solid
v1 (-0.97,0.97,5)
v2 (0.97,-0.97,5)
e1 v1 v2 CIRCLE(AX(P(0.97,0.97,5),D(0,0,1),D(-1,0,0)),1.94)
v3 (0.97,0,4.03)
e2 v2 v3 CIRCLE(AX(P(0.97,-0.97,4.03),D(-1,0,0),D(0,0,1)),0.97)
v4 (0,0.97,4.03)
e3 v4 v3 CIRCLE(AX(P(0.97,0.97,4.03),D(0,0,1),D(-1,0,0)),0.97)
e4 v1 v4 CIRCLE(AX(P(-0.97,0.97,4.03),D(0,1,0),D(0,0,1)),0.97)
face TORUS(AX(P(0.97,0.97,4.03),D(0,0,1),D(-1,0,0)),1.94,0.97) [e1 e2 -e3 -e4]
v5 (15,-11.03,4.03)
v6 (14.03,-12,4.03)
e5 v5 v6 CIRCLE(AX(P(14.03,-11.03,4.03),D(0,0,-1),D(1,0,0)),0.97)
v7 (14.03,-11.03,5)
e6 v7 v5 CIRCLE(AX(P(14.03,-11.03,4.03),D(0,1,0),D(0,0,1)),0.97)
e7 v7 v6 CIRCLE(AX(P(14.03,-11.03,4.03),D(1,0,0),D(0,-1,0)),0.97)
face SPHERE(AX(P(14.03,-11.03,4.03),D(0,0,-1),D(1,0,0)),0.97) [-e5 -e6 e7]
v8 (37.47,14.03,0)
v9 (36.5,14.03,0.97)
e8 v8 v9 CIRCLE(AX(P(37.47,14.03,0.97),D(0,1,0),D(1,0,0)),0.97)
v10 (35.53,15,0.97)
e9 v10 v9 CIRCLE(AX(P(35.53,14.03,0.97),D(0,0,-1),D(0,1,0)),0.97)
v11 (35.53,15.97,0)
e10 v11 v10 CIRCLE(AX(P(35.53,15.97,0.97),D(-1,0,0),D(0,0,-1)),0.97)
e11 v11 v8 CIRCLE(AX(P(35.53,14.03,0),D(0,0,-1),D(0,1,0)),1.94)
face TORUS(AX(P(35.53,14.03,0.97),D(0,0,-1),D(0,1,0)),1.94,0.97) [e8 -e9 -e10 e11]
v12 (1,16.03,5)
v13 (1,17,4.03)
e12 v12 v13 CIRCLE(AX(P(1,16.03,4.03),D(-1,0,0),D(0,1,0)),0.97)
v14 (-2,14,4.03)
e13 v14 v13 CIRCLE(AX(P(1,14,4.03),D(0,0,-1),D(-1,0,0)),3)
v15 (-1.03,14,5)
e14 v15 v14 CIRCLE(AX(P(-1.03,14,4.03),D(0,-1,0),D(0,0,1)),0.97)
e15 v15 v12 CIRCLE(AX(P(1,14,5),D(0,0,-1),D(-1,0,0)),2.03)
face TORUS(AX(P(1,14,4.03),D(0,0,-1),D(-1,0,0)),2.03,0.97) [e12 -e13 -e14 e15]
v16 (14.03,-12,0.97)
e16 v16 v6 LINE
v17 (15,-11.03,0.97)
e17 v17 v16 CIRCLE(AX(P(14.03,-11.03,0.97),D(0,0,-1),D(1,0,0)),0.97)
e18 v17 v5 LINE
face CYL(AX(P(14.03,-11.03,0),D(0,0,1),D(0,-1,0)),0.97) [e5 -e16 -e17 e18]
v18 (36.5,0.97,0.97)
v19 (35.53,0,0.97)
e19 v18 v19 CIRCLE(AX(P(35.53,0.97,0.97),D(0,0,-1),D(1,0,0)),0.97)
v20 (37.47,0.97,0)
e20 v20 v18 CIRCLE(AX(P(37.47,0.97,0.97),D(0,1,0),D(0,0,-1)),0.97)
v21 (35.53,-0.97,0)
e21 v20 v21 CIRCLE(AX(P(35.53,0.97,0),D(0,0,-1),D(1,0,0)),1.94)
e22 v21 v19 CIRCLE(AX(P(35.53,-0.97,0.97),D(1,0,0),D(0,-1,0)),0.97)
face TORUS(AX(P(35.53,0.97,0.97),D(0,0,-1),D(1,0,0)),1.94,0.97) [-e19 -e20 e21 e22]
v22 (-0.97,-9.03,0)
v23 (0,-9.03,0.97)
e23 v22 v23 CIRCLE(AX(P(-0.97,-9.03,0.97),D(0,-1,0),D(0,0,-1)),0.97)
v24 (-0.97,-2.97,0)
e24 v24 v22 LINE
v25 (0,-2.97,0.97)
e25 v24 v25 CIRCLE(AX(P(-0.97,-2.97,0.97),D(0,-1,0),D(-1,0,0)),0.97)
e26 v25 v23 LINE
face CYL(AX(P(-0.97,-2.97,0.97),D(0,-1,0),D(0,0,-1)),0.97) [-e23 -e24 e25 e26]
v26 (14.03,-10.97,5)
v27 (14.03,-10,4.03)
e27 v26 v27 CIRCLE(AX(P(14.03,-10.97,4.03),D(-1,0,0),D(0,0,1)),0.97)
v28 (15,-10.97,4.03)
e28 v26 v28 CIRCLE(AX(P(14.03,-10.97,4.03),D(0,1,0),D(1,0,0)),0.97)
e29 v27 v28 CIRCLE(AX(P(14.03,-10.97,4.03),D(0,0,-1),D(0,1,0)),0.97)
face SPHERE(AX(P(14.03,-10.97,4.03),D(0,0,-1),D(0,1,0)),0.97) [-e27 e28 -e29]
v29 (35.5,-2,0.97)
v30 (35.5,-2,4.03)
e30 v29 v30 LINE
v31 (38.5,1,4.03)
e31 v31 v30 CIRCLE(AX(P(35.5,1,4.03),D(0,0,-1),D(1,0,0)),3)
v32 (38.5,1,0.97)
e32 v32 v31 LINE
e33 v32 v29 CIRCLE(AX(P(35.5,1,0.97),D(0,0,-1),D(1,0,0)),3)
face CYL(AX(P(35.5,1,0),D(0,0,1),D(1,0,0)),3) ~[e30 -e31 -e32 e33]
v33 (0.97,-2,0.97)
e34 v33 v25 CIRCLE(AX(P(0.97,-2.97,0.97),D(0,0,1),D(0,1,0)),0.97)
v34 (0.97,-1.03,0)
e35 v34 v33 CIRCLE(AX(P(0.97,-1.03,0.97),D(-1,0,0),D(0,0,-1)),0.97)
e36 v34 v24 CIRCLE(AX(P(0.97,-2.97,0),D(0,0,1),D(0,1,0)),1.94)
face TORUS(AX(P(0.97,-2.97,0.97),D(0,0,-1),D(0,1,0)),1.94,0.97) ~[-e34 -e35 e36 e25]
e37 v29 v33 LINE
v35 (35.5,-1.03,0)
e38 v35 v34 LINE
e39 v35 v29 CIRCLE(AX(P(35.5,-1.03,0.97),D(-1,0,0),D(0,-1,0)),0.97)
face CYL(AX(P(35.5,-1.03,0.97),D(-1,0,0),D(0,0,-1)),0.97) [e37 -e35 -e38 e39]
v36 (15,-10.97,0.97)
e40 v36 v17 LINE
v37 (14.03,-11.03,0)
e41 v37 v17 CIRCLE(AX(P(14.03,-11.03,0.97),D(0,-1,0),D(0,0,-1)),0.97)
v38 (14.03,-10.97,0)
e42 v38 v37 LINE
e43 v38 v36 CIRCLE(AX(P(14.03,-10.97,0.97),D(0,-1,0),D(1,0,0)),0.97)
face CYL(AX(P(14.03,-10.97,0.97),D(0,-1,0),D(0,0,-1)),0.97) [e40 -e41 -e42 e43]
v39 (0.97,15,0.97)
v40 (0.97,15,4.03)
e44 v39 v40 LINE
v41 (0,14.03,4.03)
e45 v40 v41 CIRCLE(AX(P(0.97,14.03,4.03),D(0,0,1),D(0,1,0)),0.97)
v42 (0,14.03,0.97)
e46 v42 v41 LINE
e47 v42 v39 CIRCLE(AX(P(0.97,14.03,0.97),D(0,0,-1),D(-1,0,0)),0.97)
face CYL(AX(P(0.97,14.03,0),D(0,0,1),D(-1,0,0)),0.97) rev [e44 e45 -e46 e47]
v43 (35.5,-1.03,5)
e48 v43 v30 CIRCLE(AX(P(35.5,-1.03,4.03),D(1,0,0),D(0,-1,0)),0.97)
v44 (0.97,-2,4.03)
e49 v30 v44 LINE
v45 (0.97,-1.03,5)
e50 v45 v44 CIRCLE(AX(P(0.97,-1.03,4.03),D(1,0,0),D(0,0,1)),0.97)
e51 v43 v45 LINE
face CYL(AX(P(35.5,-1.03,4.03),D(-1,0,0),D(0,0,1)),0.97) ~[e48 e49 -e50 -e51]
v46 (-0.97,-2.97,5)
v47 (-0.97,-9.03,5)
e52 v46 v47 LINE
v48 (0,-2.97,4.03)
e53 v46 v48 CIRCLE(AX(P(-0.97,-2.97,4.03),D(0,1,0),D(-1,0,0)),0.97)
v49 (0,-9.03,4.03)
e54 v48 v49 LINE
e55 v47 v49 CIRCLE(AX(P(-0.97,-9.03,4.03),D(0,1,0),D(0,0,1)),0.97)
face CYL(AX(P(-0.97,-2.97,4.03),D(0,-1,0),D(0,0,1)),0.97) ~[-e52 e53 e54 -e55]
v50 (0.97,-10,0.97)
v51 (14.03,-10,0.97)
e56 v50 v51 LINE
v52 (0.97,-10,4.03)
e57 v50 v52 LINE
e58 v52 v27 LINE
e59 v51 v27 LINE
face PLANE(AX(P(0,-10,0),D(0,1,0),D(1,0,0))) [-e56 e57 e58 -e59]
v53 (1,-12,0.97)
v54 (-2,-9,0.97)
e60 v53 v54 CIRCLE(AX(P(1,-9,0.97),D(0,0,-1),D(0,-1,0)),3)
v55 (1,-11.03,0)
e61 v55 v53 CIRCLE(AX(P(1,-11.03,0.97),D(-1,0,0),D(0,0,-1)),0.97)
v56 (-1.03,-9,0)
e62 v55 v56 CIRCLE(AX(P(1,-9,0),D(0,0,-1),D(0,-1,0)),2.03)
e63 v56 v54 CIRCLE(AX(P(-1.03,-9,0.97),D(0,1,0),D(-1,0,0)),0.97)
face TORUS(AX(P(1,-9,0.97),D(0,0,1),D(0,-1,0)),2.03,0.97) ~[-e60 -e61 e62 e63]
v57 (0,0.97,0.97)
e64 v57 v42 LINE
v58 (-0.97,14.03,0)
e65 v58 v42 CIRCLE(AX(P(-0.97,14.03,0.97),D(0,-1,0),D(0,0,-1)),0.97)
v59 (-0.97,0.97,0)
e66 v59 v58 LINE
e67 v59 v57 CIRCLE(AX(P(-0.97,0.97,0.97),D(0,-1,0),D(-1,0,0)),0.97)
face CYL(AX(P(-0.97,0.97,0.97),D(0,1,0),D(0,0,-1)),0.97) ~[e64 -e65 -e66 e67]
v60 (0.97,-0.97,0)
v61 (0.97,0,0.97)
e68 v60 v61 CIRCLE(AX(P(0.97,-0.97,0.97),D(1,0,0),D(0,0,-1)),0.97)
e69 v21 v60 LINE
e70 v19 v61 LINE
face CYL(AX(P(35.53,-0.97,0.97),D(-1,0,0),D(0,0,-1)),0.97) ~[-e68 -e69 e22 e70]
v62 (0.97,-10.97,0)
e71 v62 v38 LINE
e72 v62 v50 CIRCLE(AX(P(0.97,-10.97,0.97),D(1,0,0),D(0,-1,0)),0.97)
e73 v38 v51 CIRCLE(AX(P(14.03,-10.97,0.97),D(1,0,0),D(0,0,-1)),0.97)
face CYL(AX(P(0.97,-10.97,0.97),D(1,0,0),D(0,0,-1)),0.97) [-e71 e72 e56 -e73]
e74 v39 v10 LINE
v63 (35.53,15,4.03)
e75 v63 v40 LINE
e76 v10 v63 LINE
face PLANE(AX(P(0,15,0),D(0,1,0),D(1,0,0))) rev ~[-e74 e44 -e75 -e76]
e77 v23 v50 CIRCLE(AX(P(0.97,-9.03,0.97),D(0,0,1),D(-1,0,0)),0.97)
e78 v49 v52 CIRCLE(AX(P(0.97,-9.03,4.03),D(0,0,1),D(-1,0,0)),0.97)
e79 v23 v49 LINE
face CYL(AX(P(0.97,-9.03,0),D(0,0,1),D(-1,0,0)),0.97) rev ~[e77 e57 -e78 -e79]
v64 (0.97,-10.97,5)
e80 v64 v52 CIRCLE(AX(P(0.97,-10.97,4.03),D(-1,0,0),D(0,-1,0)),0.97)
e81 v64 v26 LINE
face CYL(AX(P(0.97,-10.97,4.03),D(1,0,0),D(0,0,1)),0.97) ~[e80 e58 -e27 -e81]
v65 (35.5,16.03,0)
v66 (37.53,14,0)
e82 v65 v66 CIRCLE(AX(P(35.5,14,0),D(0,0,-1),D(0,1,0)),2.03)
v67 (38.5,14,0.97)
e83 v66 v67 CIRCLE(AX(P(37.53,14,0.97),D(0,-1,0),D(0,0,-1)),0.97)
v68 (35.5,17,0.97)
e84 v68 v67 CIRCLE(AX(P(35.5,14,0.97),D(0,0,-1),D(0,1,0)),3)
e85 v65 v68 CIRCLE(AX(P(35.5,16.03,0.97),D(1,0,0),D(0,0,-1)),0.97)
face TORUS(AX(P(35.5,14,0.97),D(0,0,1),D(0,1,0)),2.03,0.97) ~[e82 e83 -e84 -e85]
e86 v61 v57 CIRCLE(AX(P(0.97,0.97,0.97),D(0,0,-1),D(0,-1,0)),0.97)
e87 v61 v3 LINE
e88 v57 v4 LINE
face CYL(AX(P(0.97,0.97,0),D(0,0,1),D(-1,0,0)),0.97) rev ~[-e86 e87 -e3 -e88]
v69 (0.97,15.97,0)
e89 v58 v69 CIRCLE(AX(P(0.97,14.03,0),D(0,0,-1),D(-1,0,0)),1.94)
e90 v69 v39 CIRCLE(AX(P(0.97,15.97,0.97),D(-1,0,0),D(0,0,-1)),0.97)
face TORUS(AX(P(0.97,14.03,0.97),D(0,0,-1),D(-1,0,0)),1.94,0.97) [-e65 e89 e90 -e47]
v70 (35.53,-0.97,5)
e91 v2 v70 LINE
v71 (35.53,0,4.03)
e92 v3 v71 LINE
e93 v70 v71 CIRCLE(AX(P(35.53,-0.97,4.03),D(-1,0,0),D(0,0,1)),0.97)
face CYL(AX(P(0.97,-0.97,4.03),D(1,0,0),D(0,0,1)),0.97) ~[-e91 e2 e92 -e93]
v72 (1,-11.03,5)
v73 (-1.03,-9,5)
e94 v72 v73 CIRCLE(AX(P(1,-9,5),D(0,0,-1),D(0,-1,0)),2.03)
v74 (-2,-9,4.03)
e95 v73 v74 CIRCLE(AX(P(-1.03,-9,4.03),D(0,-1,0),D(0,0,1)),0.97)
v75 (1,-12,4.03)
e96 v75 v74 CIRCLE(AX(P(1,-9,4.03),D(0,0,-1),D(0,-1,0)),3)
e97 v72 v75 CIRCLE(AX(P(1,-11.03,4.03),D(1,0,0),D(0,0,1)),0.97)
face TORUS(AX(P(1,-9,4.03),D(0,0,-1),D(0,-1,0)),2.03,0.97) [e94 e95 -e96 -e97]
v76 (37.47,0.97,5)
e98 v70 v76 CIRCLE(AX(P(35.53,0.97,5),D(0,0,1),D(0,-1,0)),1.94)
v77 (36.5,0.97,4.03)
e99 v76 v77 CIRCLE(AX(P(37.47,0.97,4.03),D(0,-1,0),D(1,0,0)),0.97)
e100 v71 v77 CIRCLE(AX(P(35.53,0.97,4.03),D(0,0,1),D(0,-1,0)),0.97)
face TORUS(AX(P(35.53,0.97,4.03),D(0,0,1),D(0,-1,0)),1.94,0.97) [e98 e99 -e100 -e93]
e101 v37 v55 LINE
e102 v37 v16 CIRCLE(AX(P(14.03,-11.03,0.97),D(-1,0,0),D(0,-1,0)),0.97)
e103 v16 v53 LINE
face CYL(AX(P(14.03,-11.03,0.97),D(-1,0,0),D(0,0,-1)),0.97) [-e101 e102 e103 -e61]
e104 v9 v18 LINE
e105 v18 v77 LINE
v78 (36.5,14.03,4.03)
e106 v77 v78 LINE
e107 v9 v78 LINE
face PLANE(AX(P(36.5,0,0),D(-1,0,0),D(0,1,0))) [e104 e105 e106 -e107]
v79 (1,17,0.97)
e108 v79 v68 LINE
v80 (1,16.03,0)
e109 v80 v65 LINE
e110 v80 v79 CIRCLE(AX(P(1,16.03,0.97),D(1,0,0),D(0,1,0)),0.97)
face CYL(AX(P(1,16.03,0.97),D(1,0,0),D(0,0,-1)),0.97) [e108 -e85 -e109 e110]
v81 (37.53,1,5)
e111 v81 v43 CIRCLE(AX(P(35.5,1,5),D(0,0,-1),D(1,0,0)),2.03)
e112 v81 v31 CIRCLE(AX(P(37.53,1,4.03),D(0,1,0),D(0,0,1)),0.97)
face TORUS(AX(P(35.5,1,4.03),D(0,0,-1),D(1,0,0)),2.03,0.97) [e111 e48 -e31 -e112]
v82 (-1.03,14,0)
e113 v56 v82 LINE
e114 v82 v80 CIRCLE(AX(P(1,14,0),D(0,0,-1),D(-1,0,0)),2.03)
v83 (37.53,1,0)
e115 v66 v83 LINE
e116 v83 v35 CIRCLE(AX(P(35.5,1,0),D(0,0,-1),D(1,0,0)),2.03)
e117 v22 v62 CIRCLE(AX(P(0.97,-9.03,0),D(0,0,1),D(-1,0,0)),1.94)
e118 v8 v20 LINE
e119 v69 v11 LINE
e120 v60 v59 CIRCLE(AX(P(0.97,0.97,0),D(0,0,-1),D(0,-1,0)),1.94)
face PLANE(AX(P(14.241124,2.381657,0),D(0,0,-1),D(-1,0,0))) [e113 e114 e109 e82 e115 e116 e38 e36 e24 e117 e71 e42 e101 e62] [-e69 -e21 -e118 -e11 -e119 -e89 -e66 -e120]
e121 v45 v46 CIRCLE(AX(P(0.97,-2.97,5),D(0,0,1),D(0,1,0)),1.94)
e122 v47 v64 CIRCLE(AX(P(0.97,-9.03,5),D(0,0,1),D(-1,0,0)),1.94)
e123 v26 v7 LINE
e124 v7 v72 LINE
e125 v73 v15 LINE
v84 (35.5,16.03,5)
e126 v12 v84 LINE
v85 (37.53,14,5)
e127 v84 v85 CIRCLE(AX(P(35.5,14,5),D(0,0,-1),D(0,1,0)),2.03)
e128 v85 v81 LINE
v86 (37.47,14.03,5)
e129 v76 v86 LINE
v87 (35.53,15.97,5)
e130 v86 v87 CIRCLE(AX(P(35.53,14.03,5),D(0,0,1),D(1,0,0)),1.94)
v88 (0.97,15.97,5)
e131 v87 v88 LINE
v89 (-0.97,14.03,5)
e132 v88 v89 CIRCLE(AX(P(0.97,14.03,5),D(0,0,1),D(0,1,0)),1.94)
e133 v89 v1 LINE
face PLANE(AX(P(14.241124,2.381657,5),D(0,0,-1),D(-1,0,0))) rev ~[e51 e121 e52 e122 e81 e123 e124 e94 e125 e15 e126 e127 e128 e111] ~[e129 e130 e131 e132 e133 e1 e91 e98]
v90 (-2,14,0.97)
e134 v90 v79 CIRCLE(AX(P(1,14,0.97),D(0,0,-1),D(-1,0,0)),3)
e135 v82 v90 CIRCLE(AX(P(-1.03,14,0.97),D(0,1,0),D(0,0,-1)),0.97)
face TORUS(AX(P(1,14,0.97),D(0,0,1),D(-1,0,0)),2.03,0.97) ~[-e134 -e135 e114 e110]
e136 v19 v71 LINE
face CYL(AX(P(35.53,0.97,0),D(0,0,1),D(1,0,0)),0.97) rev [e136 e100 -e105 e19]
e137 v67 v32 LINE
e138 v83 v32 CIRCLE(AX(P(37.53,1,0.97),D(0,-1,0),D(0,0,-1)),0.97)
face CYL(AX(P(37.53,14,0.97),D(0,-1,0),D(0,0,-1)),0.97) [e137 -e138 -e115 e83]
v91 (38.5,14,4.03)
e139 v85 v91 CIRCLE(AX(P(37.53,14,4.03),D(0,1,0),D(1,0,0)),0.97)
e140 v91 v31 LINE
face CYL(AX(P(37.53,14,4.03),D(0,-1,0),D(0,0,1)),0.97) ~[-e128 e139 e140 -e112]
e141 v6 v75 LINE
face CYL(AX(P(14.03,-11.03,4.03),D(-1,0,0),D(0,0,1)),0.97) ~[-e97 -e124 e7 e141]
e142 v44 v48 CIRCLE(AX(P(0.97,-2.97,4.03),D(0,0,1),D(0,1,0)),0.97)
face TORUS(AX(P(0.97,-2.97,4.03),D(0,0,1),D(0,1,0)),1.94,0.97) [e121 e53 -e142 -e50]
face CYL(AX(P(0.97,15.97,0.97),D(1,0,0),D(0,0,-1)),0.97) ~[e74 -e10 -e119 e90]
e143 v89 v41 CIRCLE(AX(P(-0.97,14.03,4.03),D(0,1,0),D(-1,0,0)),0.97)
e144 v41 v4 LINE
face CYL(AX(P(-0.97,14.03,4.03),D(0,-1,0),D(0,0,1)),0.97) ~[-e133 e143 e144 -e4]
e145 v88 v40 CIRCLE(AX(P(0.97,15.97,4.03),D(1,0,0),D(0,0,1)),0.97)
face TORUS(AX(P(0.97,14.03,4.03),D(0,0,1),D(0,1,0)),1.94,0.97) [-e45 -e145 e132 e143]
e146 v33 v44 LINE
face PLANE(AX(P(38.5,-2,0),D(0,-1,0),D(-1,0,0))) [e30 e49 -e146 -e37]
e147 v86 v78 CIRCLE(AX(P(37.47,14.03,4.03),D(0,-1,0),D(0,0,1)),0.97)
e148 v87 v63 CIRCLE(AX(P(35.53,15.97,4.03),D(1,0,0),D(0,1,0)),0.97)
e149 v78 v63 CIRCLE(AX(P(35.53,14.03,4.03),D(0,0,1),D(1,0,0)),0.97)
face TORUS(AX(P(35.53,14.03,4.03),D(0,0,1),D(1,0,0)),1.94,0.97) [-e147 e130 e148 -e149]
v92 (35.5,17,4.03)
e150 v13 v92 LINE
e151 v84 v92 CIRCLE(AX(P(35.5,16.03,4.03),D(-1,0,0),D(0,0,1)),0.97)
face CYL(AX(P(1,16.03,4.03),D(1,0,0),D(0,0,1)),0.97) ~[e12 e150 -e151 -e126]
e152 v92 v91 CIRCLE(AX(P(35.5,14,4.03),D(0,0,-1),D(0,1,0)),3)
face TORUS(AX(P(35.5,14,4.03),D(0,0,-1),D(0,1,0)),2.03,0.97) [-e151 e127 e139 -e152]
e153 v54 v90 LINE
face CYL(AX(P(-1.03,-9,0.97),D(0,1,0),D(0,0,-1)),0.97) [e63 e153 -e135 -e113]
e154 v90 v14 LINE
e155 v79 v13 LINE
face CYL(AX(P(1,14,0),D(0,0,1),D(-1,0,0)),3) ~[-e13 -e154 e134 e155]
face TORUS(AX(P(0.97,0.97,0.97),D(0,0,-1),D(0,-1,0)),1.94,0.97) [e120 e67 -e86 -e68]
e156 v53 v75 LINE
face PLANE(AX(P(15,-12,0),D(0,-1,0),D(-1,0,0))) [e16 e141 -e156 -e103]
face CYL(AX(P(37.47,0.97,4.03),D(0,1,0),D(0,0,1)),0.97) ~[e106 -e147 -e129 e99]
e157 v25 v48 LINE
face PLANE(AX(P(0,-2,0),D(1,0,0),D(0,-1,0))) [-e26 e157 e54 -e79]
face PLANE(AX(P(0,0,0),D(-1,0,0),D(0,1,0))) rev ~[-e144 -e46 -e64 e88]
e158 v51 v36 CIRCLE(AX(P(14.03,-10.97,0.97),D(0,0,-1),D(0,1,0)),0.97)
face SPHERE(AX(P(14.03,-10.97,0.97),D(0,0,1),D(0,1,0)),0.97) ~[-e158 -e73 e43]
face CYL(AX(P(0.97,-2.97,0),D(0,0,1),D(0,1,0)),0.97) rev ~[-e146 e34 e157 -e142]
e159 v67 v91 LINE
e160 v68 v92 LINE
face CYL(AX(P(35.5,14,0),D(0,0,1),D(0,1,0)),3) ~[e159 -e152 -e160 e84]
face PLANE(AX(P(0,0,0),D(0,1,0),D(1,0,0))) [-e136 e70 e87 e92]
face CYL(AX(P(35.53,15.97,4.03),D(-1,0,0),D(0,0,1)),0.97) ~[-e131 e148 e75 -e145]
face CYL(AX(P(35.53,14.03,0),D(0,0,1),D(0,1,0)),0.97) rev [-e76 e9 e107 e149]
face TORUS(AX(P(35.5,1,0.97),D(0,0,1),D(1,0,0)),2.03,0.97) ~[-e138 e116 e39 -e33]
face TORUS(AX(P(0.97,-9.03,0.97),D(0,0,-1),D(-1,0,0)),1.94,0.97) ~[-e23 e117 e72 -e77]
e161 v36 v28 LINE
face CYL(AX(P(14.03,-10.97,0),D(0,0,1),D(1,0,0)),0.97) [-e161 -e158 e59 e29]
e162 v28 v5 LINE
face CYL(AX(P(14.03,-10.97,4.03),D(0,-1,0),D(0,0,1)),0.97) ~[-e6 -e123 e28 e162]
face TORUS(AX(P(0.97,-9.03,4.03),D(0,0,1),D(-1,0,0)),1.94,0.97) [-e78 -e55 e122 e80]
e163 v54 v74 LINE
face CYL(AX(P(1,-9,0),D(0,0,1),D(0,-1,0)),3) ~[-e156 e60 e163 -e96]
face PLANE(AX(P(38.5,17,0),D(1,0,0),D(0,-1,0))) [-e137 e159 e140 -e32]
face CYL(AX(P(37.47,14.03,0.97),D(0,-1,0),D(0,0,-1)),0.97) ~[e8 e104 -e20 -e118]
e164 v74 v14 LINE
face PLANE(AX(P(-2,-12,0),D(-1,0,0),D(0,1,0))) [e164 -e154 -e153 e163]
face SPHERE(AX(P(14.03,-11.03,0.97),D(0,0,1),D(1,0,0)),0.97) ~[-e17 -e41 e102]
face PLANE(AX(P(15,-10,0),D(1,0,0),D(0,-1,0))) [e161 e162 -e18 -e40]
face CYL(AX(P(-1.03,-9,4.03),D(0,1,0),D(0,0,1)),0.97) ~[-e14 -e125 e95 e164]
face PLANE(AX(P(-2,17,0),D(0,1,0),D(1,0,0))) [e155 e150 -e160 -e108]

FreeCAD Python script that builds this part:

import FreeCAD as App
import Part
import Sketcher
Q = App.Units.Quantity


def edges_at(feature, points):
    """Names of the edges that pass closest to the given points."""
    edges = feature.Shape.Edges
    near = lambda p: min(range(len(edges)), key=lambda i: edges[i].distToShape(Part.Vertex(*p))[0])
    return sorted({f"Edge{near(p) + 1}" for p in points})

doc = App.newDocument("Part")
body = doc.addObject("PartDesign::Body", "Body")

# Sketch on XY plane
sketch1 = doc.addObject("Sketcher::SketchObject", "Sketch")
body.addObject(sketch1)
sketch1.AttachmentSupport = (doc.XY_Plane, [""])
sketch1.MapMode = "FlatFace"
sketch1.addGeometry([
    Part.LineSegment(App.Vector(38.5, 17, 0), App.Vector(-2, 17, 0)),  # 0
    Part.LineSegment(App.Vector(-2, 17, 0), App.Vector(-2, -12, 0)),  # 1
    Part.LineSegment(App.Vector(-2, -12, 0), App.Vector(15, -12, 0)),  # 2
    Part.LineSegment(App.Vector(15, -12, 0), App.Vector(15, -10, 0)),  # 3
    Part.LineSegment(App.Vector(15, -10, 0), App.Vector(0, -10, 0)),  # 4
    Part.LineSegment(App.Vector(0, -10, 0), App.Vector(0, -2, 0)),  # 5
    Part.LineSegment(App.Vector(0, -2, 0), App.Vector(38.5, -2, 0)),  # 6
    Part.LineSegment(App.Vector(38.5, -2, 0), App.Vector(38.5, 17, 0)),  # 7
    Part.LineSegment(App.Vector(0, 0, 0), App.Vector(0, 15, 0)),  # 8
    Part.LineSegment(App.Vector(0, 15, 0), App.Vector(36.5, 15, 0)),  # 9
    Part.LineSegment(App.Vector(36.5, 15, 0), App.Vector(36.5, 0, 0)),  # 10
    Part.LineSegment(App.Vector(36.5, 0, 0), App.Vector(0, 0, 0)),  # 11
], False)
sketch1.addConstraint([
    Sketcher.Constraint("Coincident", 0, 2, 1, 1),
    Sketcher.Constraint("Coincident", 1, 2, 2, 1),
    Sketcher.Constraint("Coincident", 2, 2, 3, 1),
    Sketcher.Constraint("Coincident", 3, 2, 4, 1),
    Sketcher.Constraint("Coincident", 4, 2, 5, 1),
    Sketcher.Constraint("Coincident", 5, 2, 6, 1),
    Sketcher.Constraint("Coincident", 6, 2, 7, 1),
    Sketcher.Constraint("Coincident", 7, 2, 0, 1),
    Sketcher.Constraint("Coincident", 8, 2, 9, 1),
    Sketcher.Constraint("Coincident", 9, 2, 10, 1),
    Sketcher.Constraint("Coincident", 10, 2, 11, 1),
    Sketcher.Constraint("Coincident", 11, 2, 8, 1),
    Sketcher.Constraint("Horizontal", 0),
    Sketcher.Constraint("Vertical", 1),
    Sketcher.Constraint("Horizontal", 2),
    Sketcher.Constraint("Vertical", 3),
    Sketcher.Constraint("Horizontal", 4),
    Sketcher.Constraint("Vertical", 5),
    Sketcher.Constraint("Horizontal", 6),
    Sketcher.Constraint("Vertical", 7),
    Sketcher.Constraint("Vertical", 8),
    Sketcher.Constraint("Horizontal", 9),
    Sketcher.Constraint("Vertical", 10),
    Sketcher.Constraint("Horizontal", 11),
    Sketcher.Constraint("Coincident", 11, 2, -1, 1),
    Sketcher.Constraint("PointOnObject", 4, 2, -2),
    Sketcher.Constraint("Equal", 4, 8),
    Sketcher.Constraint("DistanceX", 2, 1, 2, 2, Q("17 mm")),
    Sketcher.Constraint("DistanceX", 4, 2, 4, 1, Q("15 mm")),
    Sketcher.Constraint("DistanceY", 1, 2, 1, 1, Q("29 mm")),
    Sketcher.Constraint("DistanceY", 3, 1, 3, 2, Q("2 mm")),
    Sketcher.Constraint("DistanceY", 5, 1, 5, 2, Q("8 mm")),
    Sketcher.Constraint("DistanceX", 0, 2, 0, 1, Q("40.5 mm")),
    Sketcher.Constraint("DistanceX", 9, 1, 9, 2, Q("36.5 mm")),
    Sketcher.Constraint("DistanceY", -1, 1, 0, 2, Q("17 mm")),
])
pad1 = doc.addObject("PartDesign::Pad", "Pad")
body.addObject(pad1)
pad1.Profile = sketch1
pad1.Length = 5
doc.recompute()

fillet = doc.addObject("PartDesign::Fillet", "Fillet")
body.addObject(fillet)
fillet.Base = (pad1, edges_at(pad1, [
    (0, 15, 2.5),
    (36.5, 15, 2.5),
    (0, 0, 2.5),
    (36.5, 0, 2.5),
    (0, -2, 2.5),
    (0, -10, 2.5),
    (15, -10, 2.5),
    (15, -12, 2.5),
]))
fillet.Radius = 0.97
doc.recompute()

fillet2 = doc.addObject("PartDesign::Fillet", "Fillet001")
body.addObject(fillet2)
fillet2.Base = (fillet, edges_at(fillet, [
    (-2, -12, 2.5),
    (38.5, -2, 2.5),
    (38.5, 17, 2.5),
    (-2, 17, 2.5),
]))
fillet2.Radius = 3
doc.recompute()

fillet3 = doc.addObject("PartDesign::Fillet", "Fillet002")
body.addObject(fillet3)
fillet3.Base = (fillet2, edges_at(fillet2, [
    (18.25, 0, 5),
    (0.284, 0.284, 5),
    (0, 7.5, 5),
    (0.284, 14.716, 5),
    (18.25, 15, 5),
    (36.216, 14.716, 5),
    (36.5, 7.5, 5),
    (36.216, 0.284, 5),
    (18.25, 15, 0),
    (0.284, 14.716, 0),
    (36.216, 14.716, 0),
    (36.5, 7.5, 0),
    (0, 7.5, 0),
    (0.284, 0.284, 0),
    (18.25, 0, 0),
    (36.216, 0.284, 0),
    (38.5, 7.5, 0),
    (-2, 2.5, 5),
]))
fillet3.Radius = 0.97

doc.recompute()
